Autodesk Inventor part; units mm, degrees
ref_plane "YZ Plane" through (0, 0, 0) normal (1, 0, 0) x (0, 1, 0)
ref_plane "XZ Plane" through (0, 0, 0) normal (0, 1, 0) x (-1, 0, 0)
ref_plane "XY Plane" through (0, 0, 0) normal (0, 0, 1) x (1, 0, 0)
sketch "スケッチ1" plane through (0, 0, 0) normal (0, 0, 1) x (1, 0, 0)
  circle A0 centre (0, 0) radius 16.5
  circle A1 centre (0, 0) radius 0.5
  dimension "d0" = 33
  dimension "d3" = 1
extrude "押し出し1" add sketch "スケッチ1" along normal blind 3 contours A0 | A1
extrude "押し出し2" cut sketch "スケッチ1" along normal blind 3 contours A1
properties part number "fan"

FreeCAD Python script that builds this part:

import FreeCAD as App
import Part
import Sketcher
Q = App.Units.Quantity

doc = App.newDocument("Part")
body = doc.addObject("PartDesign::Body", "Body")

# Sketch on XY plane
sketch1 = body.newObject("Sketcher::SketchObject", "Sketch")
sketch1.AttachmentSupport = (doc.getObject("XY_Plane"), [""])
sketch1.MapMode = "FlatFace"
sketch1.addGeometry(Part.Circle(App.Vector(0, 0, 0), App.Vector(0, 0, 1), 16), False)
sketch1.addConstraint([
    Sketcher.Constraint("Coincident", 0, 3, -1, 1),
    Sketcher.Constraint("Diameter", 0, Q("33 mm")),
])
pad1 = body.newObject("PartDesign::Pad", "Pad")
pad1.Profile = sketch1
pad1.Length = 3

# Sketch on XY plane
sketch2 = body.newObject("Sketcher::SketchObject", "Sketch001")
sketch2.AttachmentSupport = (doc.getObject("XY_Plane"), [""])
sketch2.MapMode = "FlatFace"
sketch2.addGeometry(Part.Circle(App.Vector(0, 0, 0), App.Vector(0, 0, 1), 0.5), False)
sketch2.addConstraint([
    Sketcher.Constraint("Coincident", 0, 3, -1, 1),
    Sketcher.Constraint("Diameter", 0, Q("1 mm")),
])
pocket1 = body.newObject("PartDesign::Pocket", "Pocket")
pocket1.Profile = sketch2
pocket1.Length = 3
pocket1.Reversed = True

doc.recompute()
